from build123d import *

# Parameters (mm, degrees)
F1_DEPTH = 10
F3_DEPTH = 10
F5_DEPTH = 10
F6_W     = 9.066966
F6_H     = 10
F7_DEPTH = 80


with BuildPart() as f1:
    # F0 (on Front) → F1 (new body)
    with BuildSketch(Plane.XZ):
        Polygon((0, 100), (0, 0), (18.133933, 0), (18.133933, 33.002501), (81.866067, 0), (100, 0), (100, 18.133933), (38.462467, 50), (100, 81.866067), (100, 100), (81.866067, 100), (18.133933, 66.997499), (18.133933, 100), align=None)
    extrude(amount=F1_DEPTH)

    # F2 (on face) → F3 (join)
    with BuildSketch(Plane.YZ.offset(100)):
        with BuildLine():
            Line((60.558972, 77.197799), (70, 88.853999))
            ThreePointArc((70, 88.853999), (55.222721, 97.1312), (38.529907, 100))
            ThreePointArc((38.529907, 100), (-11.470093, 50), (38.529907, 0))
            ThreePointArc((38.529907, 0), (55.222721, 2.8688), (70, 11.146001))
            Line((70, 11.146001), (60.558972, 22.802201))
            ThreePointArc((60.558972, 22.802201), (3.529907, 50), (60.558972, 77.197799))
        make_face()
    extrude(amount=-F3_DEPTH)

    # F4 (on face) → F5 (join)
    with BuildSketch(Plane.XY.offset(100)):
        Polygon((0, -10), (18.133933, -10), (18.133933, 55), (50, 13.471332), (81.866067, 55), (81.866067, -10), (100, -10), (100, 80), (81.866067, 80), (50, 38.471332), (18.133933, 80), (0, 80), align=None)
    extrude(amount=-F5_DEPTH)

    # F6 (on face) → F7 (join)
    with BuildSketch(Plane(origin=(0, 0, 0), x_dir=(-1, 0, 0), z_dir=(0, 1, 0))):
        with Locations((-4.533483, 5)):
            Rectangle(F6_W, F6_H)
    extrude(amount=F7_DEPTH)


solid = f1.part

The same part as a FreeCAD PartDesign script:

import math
import FreeCAD as App
import Part
import Sketcher

V = App.Vector
Q = App.Units.Quantity


def add_polygon(sketch, points):
    """Adds a closed chain of lines whose ends are joined by coincident constraints."""
    first, n = sketch.GeometryCount, len(points)
    for a, b in zip(points, points[1:] + points[:1]):
        sketch.addGeometry(Part.LineSegment(App.Vector(*a, 0), App.Vector(*b, 0)), False)
    for i in range(n):
        sketch.addConstraint(Sketcher.Constraint("Coincident", first + i, 2, first + (i + 1) % n, 1))

doc = App.newDocument("Part")
body = doc.addObject("PartDesign::Body", "Body")

# Sketch on XZ plane
sketch1 = body.newObject("Sketcher::SketchObject", "Sketch")
sketch1.AttachmentSupport = (doc.getObject("XZ_Plane"), [""])
sketch1.MapMode = "FlatFace"
add_polygon(sketch1, [(0, 100), (0, 0), (18.133933, 0), (18.133933, 33.002501), (81.866067, 0), (100, 0), (100, 18.133933), (38.462467, 50), (100, 81.866067), (100, 100), (81.866067, 100), (18.133933, 66.997499), (18.133933, 100)])  # lines 0-12
sketch1.addConstraint(Sketcher.Constraint("Vertical", 0))
sketch1.addConstraint(Sketcher.Constraint("Horizontal", 1))
sketch1.addConstraint(Sketcher.Constraint("Vertical", 2))
sketch1.addConstraint(Sketcher.Constraint("Horizontal", 4))
sketch1.addConstraint(Sketcher.Constraint("Vertical", 5))
sketch1.addConstraint(Sketcher.Constraint("Vertical", 8))
sketch1.addConstraint(Sketcher.Constraint("Horizontal", 9))
sketch1.addConstraint(Sketcher.Constraint("Vertical", 11))
sketch1.addConstraint(Sketcher.Constraint("Horizontal", 12))
sketch1.addConstraint(Sketcher.Constraint("Coincident", 0, 2, -1, 1))
sketch1.addConstraint(Sketcher.Constraint("PointOnObject", 3, 2, -1))
sketch1.addConstraint(Sketcher.Constraint("Parallel", 3, 6))
sketch1.addConstraint(Sketcher.Constraint("Parallel", 7, 10))
sketch1.addConstraint(Sketcher.Constraint("Horizontal", 9, 2, 11, 2))
sketch1.addConstraint(Sketcher.Constraint("Vertical", 5, 2, 7, 2))
sketch1.addConstraint(Sketcher.Constraint("Vertical", 3, 2, 9, 2))
sketch1.addConstraint(Sketcher.Constraint("Vertical", 2, 2, 10, 2))
sketch1.addConstraint(Sketcher.Constraint("Equal", 1, 4))
sketch1.addConstraint(Sketcher.Constraint("Equal", 12, 5))
sketch1.addConstraint(Sketcher.Constraint("Equal", 5, 8))
sketch1.addConstraint(Sketcher.Constraint("Equal", 2, 11))
sketch1.addConstraint(Sketcher.Constraint("DistanceY", 0, 2, 0, 1, Q("100 mm")))
sketch1.addConstraint(Sketcher.Constraint("DistanceX", -1, 1, 4, 2, Q("100 mm")))
sketch1.addConstraint(Sketcher.Constraint("DistanceY", 2, 1, 2, 2, Q("33.002501 mm")))
sketch1.addConstraint(Sketcher.Constraint("DistanceX", 6, 2, 3, 2, Q("43.4036 mm")))
pad1 = body.newObject("PartDesign::Pad", "Pad")
pad1.Profile = sketch1
pad1.Length = 10

# Sketch on YZ plane
sketch2 = body.newObject("Sketcher::SketchObject", "Sketch001")
sketch2.AttachmentSupport = (doc.getObject("YZ_Plane"), [""])
sketch2.MapMode = "FlatFace"
sketch2.AttachmentOffset = App.Placement(V(0, 0, 100), App.Rotation())
sketch2.addGeometry(Part.LineSegment(V(60.558972, 77.197799, 0), V(70, 88.853999, 0)), False)
sketch2.addGeometry(Part.ArcOfCircle(Part.Circle(V(38.52991, 50.000009, 0), V(0, 0, 1), 49.999991), math.radians(50.993989), math.radians(90.000004)), False)
sketch2.addGeometry(Part.ArcOfCircle(Part.Circle(V(38.529907, 50, 0), V(0, 0, 1), 50), math.radians(90), math.radians(270)), False)
sketch2.addGeometry(Part.ArcOfCircle(Part.Circle(V(38.52991, 49.999991, 0), V(0, 0, 1), 49.999991), math.radians(-90.000004), math.radians(-50.993989)), False)
sketch2.addGeometry(Part.LineSegment(V(70, 11.146001, 0), V(60.558972, 22.802201, 0)), False)
sketch2.addGeometry(Part.ArcOfCircle(Part.Circle(V(38.529907, 50, 0), V(0, 0, 1), 35), math.radians(50.993993), math.radians(309.006007)), False)
sketch2.addConstraint(Sketcher.Constraint("Coincident", 0, 2, 1, 1))
sketch2.addConstraint(Sketcher.Constraint("Tangent", 1, 2, 2, 1))
sketch2.addConstraint(Sketcher.Constraint("Tangent", 2, 2, 3, 1))
sketch2.addConstraint(Sketcher.Constraint("Coincident", 3, 2, 4, 1))
sketch2.addConstraint(Sketcher.Constraint("Coincident", 4, 2, 5, 2))
sketch2.addConstraint(Sketcher.Constraint("Coincident", 5, 1, 0, 1))
sketch2.addConstraint(Sketcher.Constraint("Coincident", 5, 3, 1, 3))
sketch2.addConstraint(Sketcher.Constraint("Equal", 1, 3))
sketch2.addConstraint(Sketcher.Constraint("PointOnObject", 2, 2, -1))
sketch2.addConstraint(Sketcher.Constraint("Vertical", 5, 3, 1, 2))
sketch2.addConstraint(Sketcher.Constraint("Vertical", 1, 2, 2, 2))
sketch2.addConstraint(Sketcher.Constraint("Vertical", 0, 2, 3, 2))
sketch2.addConstraint(Sketcher.Constraint("Vertical", 4, 2, 5, 1))
sketch2.addConstraint(Sketcher.Constraint("Equal", 0, 4))
sketch2.addConstraint(Sketcher.Constraint("Radius", 2, Q("50 mm")))
sketch2.addConstraint(Sketcher.Constraint("Radius", 5, Q("35 mm")))
sketch2.addConstraint(Sketcher.Constraint("DistanceX", -1, 1, 0, 2, Q("70 mm")))
sketch2.addConstraint(Sketcher.Constraint("DistanceY", -1, 1, 0, 2, Q("88.853999 mm")))
sketch2.addConstraint(Sketcher.Constraint("DistanceY", -1, 1, 4, 2, Q("22.802201 mm")))
pad2 = body.newObject("PartDesign::Pad", "Pad001")
pad2.Profile = sketch2
pad2.Length = 10
pad2.Reversed = True

# Sketch on XY plane
sketch3 = body.newObject("Sketcher::SketchObject", "Sketch002")
sketch3.AttachmentSupport = (doc.getObject("XY_Plane"), [""])
sketch3.MapMode = "FlatFace"
sketch3.AttachmentOffset = App.Placement(V(0, 0, 100), App.Rotation())
add_polygon(sketch3, [(0, -10), (18.133933, -10), (18.133933, 55), (50, 13.471332), (81.866067, 55), (81.866067, -10), (100, -10), (100, 80), (81.866067, 80), (50, 38.471332), (18.133933, 80), (0, 80)])  # lines 0-11
sketch3.addConstraint(Sketcher.Constraint("Horizontal", 0))
sketch3.addConstraint(Sketcher.Constraint("Vertical", 1))
sketch3.addConstraint(Sketcher.Constraint("Vertical", 4))
sketch3.addConstraint(Sketcher.Constraint("Horizontal", 5))
sketch3.addConstraint(Sketcher.Constraint("Vertical", 6))
sketch3.addConstraint(Sketcher.Constraint("Horizontal", 7))
sketch3.addConstraint(Sketcher.Constraint("Horizontal", 10))
sketch3.addConstraint(Sketcher.Constraint("Vertical", 11))
sketch3.addConstraint(Sketcher.Constraint("PointOnObject", 10, 2, -2))
sketch3.addConstraint(Sketcher.Constraint("Parallel", 3, 8))
sketch3.addConstraint(Sketcher.Constraint("Parallel", 2, 9))
sketch3.addConstraint(Sketcher.Constraint("Horizontal", 1, 2, 3, 2))
sketch3.addConstraint(Sketcher.Constraint("Horizontal", 0, 2, 4, 2))
sketch3.addConstraint(Sketcher.Constraint("Horizontal", 7, 2, 9, 2))
sketch3.addConstraint(Sketcher.Constraint("Vertical", 4, 2, 7, 2))
sketch3.addConstraint(Sketcher.Constraint("Vertical", 2, 2, 8, 2))
sketch3.addConstraint(Sketcher.Constraint("Equal", 0, 5))
sketch3.addConstraint(Sketcher.Constraint("Equal", 2, 3))
sketch3.addConstraint(Sketcher.Constraint("DistanceY", 1, 1, 1, 2, Q("65 mm")))
sketch3.addConstraint(Sketcher.Constraint("DistanceY", 6, 1, 6, 2, Q("90 mm")))
sketch3.addConstraint(Sketcher.Constraint("DistanceY", 0, 2, -1, 1, Q("10 mm")))
sketch3.addConstraint(Sketcher.Constraint("DistanceX", -1, 1, 2, 2, Q("50 mm")))
sketch3.addConstraint(Sketcher.Constraint("Angle", 2, Q("-52.500001 deg")))
sketch3.addConstraint(Sketcher.Constraint("Distance", 2, Q("52.34574 mm")))
pad3 = body.newObject("PartDesign::Pad", "Pad002")
pad3.Profile = sketch3
pad3.Length = 10
pad3.Reversed = True

# Sketch on XZ plane
sketch4 = body.newObject("Sketcher::SketchObject", "Sketch003")
sketch4.AttachmentSupport = (doc.getObject("XZ_Plane"), [""])
sketch4.MapMode = "FlatFace"
add_polygon(sketch4, [(9.066966, 10), (9.066966, 0), (0, 0), (0, 10)])  # lines 0-3
sketch4.addConstraint(Sketcher.Constraint("Vertical", 0))
sketch4.addConstraint(Sketcher.Constraint("Horizontal", 1))
sketch4.addConstraint(Sketcher.Constraint("Vertical", 2))
sketch4.addConstraint(Sketcher.Constraint("Horizontal", 3))
sketch4.addConstraint(Sketcher.Constraint("Coincident", 1, 2, -1, 1))
sketch4.addConstraint(Sketcher.Constraint("DistanceY", 0, 2, 0, 1, Q("10 mm")))
sketch4.addConstraint(Sketcher.Constraint("DistanceX", 1, 2, 1, 1, Q("9.066966 mm")))
pad4 = body.newObject("PartDesign::Pad", "Pad003")
pad4.Profile = sketch4
pad4.Length = 80
pad4.Reversed = True

doc.recompute()
